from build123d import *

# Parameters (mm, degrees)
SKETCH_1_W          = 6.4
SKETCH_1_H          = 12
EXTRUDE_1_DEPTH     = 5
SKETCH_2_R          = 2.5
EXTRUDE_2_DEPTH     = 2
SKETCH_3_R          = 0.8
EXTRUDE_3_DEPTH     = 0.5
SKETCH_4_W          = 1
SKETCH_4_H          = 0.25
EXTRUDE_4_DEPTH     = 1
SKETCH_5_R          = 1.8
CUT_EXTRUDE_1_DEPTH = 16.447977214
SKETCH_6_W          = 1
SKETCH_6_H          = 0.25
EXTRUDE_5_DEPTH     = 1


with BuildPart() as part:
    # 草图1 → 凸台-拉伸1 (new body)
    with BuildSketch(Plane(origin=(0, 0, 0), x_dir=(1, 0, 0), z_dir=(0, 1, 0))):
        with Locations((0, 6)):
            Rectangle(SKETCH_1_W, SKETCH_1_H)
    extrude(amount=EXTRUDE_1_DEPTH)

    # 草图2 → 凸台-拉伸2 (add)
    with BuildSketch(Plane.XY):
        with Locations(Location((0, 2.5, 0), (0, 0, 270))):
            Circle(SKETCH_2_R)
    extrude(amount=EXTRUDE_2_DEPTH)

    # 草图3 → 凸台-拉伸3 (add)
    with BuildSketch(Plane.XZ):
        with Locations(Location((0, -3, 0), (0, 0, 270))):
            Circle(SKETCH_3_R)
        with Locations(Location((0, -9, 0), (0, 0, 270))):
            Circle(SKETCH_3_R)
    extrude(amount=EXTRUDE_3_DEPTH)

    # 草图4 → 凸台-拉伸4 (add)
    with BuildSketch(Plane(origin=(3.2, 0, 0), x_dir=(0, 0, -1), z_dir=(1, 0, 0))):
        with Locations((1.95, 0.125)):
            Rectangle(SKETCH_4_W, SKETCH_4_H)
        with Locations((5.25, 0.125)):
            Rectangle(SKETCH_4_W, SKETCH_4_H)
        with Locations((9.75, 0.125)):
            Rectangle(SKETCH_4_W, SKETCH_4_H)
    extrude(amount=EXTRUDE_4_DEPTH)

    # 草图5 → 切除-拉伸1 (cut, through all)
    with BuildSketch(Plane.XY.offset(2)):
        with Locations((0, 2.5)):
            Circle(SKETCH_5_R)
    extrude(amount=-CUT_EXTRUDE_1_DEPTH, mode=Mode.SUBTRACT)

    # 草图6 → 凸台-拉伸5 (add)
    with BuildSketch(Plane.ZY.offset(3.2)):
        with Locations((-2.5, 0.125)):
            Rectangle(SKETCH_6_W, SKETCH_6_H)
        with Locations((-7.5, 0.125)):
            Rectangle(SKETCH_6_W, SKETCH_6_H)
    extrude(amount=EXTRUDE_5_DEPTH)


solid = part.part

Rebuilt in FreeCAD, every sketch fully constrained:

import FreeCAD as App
import Part
import Sketcher


def add_polygon(sketch, points):
    """Adds a closed chain of lines whose ends are joined by coincident constraints."""
    first, n = sketch.GeometryCount, len(points)
    for a, b in zip(points, points[1:] + points[:1]):
        sketch.addGeometry(Part.LineSegment(App.Vector(*a, 0), App.Vector(*b, 0)), False)
    for i in range(n):
        sketch.addConstraint(Sketcher.Constraint("Coincident", first + i, 2, first + (i + 1) % n, 1))

doc = App.newDocument("Part")
body = doc.addObject("PartDesign::Body", "Body")

sketch1 = doc.addObject("Sketcher::SketchObject", "Sketch")
body.addObject(sketch1)
sketch1.AttachmentSupport = (doc.XZ_Plane, [""])
sketch1.MapMode = "FlatFace"
add_polygon(sketch1, [(-3, -12), (-3, 0), (3, 0), (3, -12)])
sketch1.addConstraint([
    Sketcher.Constraint("Vertical", 0),
    Sketcher.Constraint("Horizontal", 1),
    Sketcher.Constraint("Vertical", 2),
    Sketcher.Constraint("Horizontal", 3),
    Sketcher.Constraint("Symmetric", 0, 2, 1, 2, -1, 1),
    Sketcher.Constraint("DistanceY", 0, 1, 0, 2, 12.0),
    Sketcher.Constraint("DistanceX", 1, 1, 1, 2, 6.4),
])
pad1 = doc.addObject("PartDesign::Pad", "Pad")
body.addObject(pad1)
pad1.Profile = sketch1
pad1.Length = 5
pad1.Reversed = True

sketch2 = doc.addObject("Sketcher::SketchObject", "Sketch001")
body.addObject(sketch2)
sketch2.AttachmentSupport = (doc.XY_Plane, [""])
sketch2.MapMode = "FlatFace"
sketch2.addGeometry(Part.Circle(App.Vector(0, 2.5, 0), App.Vector(0, 0, 1), 2.5), False)
sketch2.addConstraint([
    Sketcher.Constraint("PointOnObject", 0, 3, -2),
    Sketcher.Constraint("Diameter", 0, 5.0),
    Sketcher.Constraint("DistanceY", -1, 1, 0, 3, 2.5),
])
pad2 = doc.addObject("PartDesign::Pad", "Pad001")
body.addObject(pad2)
pad2.Profile = sketch2
pad2.Length = 2

sketch3 = doc.addObject("Sketcher::SketchObject", "Sketch002")
body.addObject(sketch3)
sketch3.AttachmentSupport = (doc.XZ_Plane, [""])
sketch3.MapMode = "FlatFace"
sketch3.addGeometry([
    Part.Circle(App.Vector(0, -3, 0), App.Vector(0, 0, 1), 0.8),
    Part.Circle(App.Vector(0, -9, 0), App.Vector(0, 0, 1), 0.8),
], False)
sketch3.addConstraint([
    Sketcher.Constraint("Equal", 0, 1),
    Sketcher.Constraint("PointOnObject", 0, 3, -2),
    Sketcher.Constraint("PointOnObject", 1, 3, -2),
    Sketcher.Constraint("Diameter", 0, 1.6),
    Sketcher.Constraint("DistanceY", 0, 3, -1, 1, 3.0),
    Sketcher.Constraint("DistanceY", 1, 3, -1, 1, 9.0),
])
pad3 = doc.addObject("PartDesign::Pad", "Pad002")
body.addObject(pad3)
pad3.Profile = sketch3
pad3.Length = 0.5

sketch4 = doc.addObject("Sketcher::SketchObject", "Sketch003")
body.addObject(sketch4)
sketch4.AttachmentSupport = (doc.YZ_Plane, [""])
sketch4.MapMode = "FlatFace"
sketch4.AttachmentOffset = App.Placement(App.Vector(0, 0, 3.2), App.Rotation())
add_polygon(sketch4, [(0.25, -1.45), (0, -1.45), (0, -2.45), (0.25, -2.45)])
add_polygon(sketch4, [(0.25, -4.75), (0, -4.75), (0, -5.75), (0.25, -5.75)])
add_polygon(sketch4, [(0.25, -9.25), (0, -9.25), (0, -10.25), (0.25, -10.25)])
sketch4.addConstraint([
    Sketcher.Constraint("Horizontal", 0),
    Sketcher.Constraint("Vertical", 1),
    Sketcher.Constraint("Horizontal", 2),
    Sketcher.Constraint("Vertical", 3),
    Sketcher.Constraint("Horizontal", 4),
    Sketcher.Constraint("Vertical", 5),
    Sketcher.Constraint("Horizontal", 6),
    Sketcher.Constraint("Vertical", 7),
    Sketcher.Constraint("Horizontal", 8),
    Sketcher.Constraint("Vertical", 9),
    Sketcher.Constraint("Horizontal", 10),
    Sketcher.Constraint("Vertical", 11),
    Sketcher.Constraint("PointOnObject", 0, 2, -2),
    Sketcher.Constraint("PointOnObject", 4, 2, -2),
    Sketcher.Constraint("PointOnObject", 8, 2, -2),
    Sketcher.Constraint("Vertical", 3, 2, 6, 2),
    Sketcher.Constraint("Vertical", 7, 2, 10, 2),
    Sketcher.Constraint("Equal", 3, 5),
    Sketcher.Constraint("Equal", 7, 9),
    Sketcher.Constraint("DistanceY", 1, 2, 1, 1, 1.0),
    Sketcher.Constraint("DistanceX", 0, 2, 0, 1, 0.25),
    Sketcher.Constraint("DistanceY", 4, 2, 1, 2, 2.3),
    Sketcher.Constraint("DistanceY", 8, 2, 5, 2, 3.5),
    Sketcher.Constraint("DistanceY", 0, 2, -1, 1, 1.45),
])
pad4 = doc.addObject("PartDesign::Pad", "Pad003")
body.addObject(pad4)
pad4.Profile = sketch4
pad4.Length = 1

sketch5 = doc.addObject("Sketcher::SketchObject", "Sketch004")
body.addObject(sketch5)
sketch5.AttachmentSupport = (doc.XY_Plane, [""])
sketch5.MapMode = "FlatFace"
sketch5.AttachmentOffset = App.Placement(App.Vector(0, 0, 2), App.Rotation())
sketch5.addGeometry(Part.Circle(App.Vector(0, 2.5, 0), App.Vector(0, 0, 1), 1.8), False)
sketch5.addConstraint([
    Sketcher.Constraint("PointOnObject", 0, 3, -2),
    Sketcher.Constraint("Diameter", 0, 3.6),
    Sketcher.Constraint("DistanceY", -1, 1, 0, 3, 2.5),
])
pocket1 = doc.addObject("PartDesign::Pocket", "Pocket")
body.addObject(pocket1)
pocket1.Profile = sketch5
pocket1.Type = "ThroughAll"

sketch6 = doc.addObject("Sketcher::SketchObject", "Sketch005")
body.addObject(sketch6)
sketch6.AttachmentSupport = (doc.YZ_Plane, [""])
sketch6.MapMode = "FlatFace"
sketch6.AttachmentOffset = App.Placement(App.Vector(0, 0, -3.2), App.Rotation())
add_polygon(sketch6, [(0.25, -3), (0, -3), (0, -2), (0.25, -2)])
add_polygon(sketch6, [(0.25, -8), (0, -8), (0, -7), (0.25, -7)])
sketch6.addConstraint([
    Sketcher.Constraint("Horizontal", 0),
    Sketcher.Constraint("Vertical", 1),
    Sketcher.Constraint("Horizontal", 2),
    Sketcher.Constraint("Vertical", 3),
    Sketcher.Constraint("Horizontal", 4),
    Sketcher.Constraint("Vertical", 5),
    Sketcher.Constraint("Horizontal", 6),
    Sketcher.Constraint("Vertical", 7),
    Sketcher.Constraint("PointOnObject", 0, 2, -2),
    Sketcher.Constraint("PointOnObject", 4, 2, -2),
    Sketcher.Constraint("Vertical", 3, 2, 6, 2),
    Sketcher.Constraint("Equal", 3, 5),
    Sketcher.Constraint("DistanceY", 1, 1, 1, 2, 1.0),
    Sketcher.Constraint("DistanceY", 0, 2, -1, 1, 3.0),
    Sketcher.Constraint("DistanceY", 4, 2, -1, 1, 8.0),
    Sketcher.Constraint("DistanceX", 0, 2, 0, 1, 0.25),
])
pad5 = doc.addObject("PartDesign::Pad", "Pad004")
body.addObject(pad5)
pad5.Profile = sketch6
pad5.Length = 1
pad5.Reversed = True

doc.recompute()
